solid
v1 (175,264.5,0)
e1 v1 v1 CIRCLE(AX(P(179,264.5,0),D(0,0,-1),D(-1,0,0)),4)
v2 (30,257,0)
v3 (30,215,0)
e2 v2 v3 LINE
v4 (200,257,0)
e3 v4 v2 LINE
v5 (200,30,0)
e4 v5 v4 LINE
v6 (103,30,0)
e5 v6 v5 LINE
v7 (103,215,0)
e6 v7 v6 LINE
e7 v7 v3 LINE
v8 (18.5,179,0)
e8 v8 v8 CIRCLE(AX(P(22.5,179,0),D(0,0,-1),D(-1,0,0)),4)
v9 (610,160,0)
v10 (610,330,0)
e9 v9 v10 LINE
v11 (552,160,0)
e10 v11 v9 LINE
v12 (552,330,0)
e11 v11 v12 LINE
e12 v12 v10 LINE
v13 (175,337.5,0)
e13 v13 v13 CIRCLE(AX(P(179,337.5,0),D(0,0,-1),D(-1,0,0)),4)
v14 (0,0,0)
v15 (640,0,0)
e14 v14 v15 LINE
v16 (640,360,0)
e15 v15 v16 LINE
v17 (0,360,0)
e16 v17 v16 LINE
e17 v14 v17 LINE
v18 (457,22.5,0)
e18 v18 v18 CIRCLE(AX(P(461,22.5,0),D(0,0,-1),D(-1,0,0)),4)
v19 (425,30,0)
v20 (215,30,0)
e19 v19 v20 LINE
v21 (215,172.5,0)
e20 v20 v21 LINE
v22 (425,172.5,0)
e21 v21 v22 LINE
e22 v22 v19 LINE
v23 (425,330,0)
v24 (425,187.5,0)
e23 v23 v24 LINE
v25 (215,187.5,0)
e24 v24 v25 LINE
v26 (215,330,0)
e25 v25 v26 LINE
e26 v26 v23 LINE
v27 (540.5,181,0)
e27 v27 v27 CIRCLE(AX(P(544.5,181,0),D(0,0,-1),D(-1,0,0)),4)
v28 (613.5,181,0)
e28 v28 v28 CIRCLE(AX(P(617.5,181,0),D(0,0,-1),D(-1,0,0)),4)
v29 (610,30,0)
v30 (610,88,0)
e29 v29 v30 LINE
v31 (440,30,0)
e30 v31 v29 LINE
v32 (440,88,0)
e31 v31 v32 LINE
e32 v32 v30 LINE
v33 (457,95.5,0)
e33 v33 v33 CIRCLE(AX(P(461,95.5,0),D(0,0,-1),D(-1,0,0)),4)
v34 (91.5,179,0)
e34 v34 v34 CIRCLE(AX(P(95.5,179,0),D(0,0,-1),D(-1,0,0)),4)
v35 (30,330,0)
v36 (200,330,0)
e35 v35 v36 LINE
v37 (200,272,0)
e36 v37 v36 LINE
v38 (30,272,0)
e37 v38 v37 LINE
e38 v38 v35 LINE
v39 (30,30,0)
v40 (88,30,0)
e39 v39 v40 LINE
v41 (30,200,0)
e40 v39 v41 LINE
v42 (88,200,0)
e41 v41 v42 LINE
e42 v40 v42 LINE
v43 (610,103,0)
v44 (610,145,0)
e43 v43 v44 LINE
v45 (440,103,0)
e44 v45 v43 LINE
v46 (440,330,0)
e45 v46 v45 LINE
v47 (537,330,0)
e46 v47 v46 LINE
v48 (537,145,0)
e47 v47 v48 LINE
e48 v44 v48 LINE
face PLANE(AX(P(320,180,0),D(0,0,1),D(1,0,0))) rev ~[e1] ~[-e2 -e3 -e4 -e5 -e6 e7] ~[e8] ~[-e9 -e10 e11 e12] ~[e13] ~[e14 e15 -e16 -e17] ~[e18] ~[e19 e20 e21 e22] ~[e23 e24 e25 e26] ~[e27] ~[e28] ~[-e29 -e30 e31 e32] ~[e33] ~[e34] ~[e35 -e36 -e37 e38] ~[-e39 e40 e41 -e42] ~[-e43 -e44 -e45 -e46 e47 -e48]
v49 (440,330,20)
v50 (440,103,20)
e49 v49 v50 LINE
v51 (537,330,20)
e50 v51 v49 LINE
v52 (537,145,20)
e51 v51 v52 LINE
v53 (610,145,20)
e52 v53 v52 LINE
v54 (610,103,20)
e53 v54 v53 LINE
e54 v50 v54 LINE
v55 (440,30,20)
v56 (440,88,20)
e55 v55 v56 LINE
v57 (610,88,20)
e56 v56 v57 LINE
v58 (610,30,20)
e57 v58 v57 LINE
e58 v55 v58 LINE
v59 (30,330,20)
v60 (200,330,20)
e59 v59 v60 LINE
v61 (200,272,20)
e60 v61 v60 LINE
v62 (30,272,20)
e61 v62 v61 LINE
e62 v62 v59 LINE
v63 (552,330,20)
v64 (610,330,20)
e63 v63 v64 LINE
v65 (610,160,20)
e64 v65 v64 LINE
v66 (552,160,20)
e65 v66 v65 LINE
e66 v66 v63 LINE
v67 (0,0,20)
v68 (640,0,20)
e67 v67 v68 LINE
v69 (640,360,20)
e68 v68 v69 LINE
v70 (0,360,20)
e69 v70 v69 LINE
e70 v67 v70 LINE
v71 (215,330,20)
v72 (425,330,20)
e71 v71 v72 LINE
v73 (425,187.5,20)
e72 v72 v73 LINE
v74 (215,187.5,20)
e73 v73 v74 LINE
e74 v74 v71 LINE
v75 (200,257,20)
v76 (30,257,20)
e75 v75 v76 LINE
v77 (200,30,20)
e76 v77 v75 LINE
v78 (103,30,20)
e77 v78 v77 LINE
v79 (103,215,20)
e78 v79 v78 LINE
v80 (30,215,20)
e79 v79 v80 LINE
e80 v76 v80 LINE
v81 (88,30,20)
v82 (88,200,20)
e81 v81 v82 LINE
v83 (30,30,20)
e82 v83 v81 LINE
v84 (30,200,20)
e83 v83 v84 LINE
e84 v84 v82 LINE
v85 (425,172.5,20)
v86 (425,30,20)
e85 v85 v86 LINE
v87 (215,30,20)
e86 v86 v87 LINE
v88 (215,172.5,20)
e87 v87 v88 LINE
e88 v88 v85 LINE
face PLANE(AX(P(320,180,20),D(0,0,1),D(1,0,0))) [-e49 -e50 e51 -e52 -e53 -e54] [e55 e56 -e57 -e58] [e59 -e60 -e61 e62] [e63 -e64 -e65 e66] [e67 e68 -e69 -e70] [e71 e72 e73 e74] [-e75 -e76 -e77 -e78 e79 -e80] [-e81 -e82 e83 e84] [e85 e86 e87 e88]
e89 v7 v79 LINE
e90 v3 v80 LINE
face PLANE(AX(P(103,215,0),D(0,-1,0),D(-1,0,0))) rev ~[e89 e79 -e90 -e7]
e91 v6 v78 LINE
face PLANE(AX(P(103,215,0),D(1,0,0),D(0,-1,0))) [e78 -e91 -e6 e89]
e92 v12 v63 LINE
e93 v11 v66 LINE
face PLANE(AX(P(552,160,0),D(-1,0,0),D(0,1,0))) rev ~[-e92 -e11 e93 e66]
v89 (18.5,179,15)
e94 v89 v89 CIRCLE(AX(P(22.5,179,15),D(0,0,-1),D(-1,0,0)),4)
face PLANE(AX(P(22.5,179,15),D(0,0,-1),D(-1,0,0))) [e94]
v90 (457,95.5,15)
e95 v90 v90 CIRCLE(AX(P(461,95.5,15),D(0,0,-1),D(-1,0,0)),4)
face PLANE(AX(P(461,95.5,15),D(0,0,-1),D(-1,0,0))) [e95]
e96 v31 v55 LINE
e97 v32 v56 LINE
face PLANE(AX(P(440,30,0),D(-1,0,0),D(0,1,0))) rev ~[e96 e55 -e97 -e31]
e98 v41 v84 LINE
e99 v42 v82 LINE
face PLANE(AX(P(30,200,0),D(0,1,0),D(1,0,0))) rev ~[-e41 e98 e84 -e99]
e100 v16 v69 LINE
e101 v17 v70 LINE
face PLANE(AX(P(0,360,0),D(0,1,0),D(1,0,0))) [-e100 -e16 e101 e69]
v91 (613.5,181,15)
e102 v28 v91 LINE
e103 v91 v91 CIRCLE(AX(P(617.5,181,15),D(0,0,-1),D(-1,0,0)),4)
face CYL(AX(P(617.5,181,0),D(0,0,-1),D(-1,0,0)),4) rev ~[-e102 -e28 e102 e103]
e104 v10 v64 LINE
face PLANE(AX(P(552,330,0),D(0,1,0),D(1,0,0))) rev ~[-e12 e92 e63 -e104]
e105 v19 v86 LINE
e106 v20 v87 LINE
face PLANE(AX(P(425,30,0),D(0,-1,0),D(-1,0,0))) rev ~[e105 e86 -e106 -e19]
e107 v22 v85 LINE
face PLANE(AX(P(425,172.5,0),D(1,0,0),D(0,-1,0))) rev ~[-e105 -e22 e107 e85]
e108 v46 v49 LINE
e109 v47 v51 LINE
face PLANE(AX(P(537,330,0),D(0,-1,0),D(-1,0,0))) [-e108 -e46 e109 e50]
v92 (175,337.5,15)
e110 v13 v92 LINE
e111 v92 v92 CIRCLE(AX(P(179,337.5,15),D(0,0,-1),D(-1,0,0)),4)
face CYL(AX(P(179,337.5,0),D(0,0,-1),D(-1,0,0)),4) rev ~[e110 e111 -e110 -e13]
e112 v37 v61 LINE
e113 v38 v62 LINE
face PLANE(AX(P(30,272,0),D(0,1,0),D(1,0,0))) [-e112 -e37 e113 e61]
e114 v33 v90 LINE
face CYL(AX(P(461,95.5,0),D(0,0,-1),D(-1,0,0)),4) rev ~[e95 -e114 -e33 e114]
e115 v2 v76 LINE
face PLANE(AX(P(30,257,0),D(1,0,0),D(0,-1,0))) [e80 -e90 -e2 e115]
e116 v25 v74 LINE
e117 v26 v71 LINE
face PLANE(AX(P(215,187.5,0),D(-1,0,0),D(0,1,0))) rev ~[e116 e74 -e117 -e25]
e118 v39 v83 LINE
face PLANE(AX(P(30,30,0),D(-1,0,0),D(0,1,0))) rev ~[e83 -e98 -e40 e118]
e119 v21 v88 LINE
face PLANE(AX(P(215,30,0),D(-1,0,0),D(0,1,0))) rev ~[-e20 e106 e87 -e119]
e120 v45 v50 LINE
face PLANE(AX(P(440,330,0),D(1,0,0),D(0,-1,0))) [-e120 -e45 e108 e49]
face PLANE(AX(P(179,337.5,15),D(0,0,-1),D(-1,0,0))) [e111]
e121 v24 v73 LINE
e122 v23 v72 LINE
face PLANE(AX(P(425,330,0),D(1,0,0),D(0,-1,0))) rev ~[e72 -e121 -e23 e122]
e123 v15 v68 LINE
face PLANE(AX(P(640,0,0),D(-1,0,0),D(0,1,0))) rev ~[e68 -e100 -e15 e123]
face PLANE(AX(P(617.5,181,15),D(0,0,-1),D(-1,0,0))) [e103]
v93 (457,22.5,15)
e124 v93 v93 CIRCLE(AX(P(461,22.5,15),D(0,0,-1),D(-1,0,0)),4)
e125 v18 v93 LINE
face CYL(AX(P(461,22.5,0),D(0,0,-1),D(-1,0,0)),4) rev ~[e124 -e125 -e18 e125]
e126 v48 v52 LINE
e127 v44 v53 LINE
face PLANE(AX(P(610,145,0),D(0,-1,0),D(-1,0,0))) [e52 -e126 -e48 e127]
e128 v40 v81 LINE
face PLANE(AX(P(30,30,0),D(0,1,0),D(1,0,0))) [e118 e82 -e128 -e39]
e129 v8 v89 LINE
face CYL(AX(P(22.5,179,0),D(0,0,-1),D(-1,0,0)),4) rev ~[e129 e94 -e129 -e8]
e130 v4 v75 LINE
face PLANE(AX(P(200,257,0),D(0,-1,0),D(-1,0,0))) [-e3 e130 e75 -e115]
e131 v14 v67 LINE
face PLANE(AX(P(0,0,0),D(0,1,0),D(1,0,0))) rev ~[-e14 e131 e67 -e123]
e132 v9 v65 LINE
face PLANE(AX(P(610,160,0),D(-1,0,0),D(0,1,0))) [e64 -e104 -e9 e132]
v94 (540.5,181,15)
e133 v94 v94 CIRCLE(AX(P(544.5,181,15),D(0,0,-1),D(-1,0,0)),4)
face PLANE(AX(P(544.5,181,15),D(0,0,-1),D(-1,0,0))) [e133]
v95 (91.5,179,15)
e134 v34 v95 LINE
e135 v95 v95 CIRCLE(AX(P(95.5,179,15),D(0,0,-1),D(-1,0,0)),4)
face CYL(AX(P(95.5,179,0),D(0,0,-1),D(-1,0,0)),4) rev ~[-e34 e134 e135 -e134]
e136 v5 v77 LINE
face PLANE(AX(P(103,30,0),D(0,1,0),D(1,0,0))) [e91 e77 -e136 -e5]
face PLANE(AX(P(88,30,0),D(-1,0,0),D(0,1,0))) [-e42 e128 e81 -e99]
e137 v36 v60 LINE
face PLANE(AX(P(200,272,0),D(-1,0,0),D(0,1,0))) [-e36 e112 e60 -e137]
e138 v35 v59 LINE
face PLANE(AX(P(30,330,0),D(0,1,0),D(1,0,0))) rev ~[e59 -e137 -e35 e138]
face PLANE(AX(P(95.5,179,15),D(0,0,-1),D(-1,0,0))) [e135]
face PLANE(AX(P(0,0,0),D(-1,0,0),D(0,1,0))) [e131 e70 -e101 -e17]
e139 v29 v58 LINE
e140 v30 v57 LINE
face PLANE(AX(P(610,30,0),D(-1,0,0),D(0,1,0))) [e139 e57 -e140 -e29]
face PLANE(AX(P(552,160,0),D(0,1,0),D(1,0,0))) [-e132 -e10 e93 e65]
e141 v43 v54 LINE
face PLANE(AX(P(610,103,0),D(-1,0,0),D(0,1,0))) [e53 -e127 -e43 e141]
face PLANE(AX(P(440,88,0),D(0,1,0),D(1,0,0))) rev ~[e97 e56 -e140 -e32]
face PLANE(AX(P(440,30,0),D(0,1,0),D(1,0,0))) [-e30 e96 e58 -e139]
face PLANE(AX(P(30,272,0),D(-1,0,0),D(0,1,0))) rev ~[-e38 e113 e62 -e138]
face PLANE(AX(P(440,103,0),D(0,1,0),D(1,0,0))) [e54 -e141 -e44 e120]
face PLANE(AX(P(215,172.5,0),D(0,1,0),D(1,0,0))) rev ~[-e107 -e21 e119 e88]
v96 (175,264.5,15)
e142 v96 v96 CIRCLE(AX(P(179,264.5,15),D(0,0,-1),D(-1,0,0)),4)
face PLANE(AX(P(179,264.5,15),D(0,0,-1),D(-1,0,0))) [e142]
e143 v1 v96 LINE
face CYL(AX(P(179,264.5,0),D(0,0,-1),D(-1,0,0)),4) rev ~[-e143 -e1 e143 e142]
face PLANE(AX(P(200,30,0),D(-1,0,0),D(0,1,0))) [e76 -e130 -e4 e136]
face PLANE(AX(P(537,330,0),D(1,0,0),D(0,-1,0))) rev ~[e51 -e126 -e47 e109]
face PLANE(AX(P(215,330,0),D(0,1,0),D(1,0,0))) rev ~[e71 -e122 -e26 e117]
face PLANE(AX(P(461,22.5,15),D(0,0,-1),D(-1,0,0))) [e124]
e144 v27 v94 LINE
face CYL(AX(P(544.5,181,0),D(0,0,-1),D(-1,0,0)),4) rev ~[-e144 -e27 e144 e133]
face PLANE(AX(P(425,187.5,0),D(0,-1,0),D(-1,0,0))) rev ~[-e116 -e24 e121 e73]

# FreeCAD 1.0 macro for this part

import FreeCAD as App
import Part
import Sketcher
from FreeCAD import Vector

doc = App.newDocument("Part")
body = doc.addObject("PartDesign::Body", "Body")

# Sketch on XY plane
sketch1 = body.newObject("Sketcher::SketchObject", "Sketch")
sketch1.AttachmentSupport = (doc.getObject("XY_Plane"), [""])
sketch1.MapMode = "FlatFace"
sketch1.addGeometry([
    Part.LineSegment(Vector(0, 360, 0), Vector(0, 0, 0)),  # 0
    Part.LineSegment(Vector(0, 0, 0), Vector(640, 0, 0)),  # 1
    Part.LineSegment(Vector(640, 0, 0), Vector(640, 360, 0)),  # 2
    Part.LineSegment(Vector(640, 360, 0), Vector(0, 360, 0)),  # 3
    Part.LineSegment(Vector(88, 30, 0), Vector(30, 30, 0)),  # 4
    Part.LineSegment(Vector(30, 30, 0), Vector(30, 200, 0)),  # 5
    Part.LineSegment(Vector(30, 200, 0), Vector(88, 200, 0)),  # 6
    Part.LineSegment(Vector(88, 200, 0), Vector(88, 30, 0)),  # 7
    Part.LineSegment(Vector(30, 257, 0), Vector(200, 257, 0)),  # 8
    Part.LineSegment(Vector(200, 257, 0), Vector(200, 30, 0)),  # 9
    Part.LineSegment(Vector(200, 30, 0), Vector(103, 30, 0)),  # 10
    Part.LineSegment(Vector(103, 30, 0), Vector(103, 215, 0)),  # 11
    Part.LineSegment(Vector(103, 215, 0), Vector(30, 215, 0)),  # 12
    Part.LineSegment(Vector(30, 215, 0), Vector(30, 257, 0)),  # 13
    Part.LineSegment(Vector(425, 172.5, 0), Vector(425, 30, 0)),  # 14
    Part.LineSegment(Vector(425, 30, 0), Vector(215, 30, 0)),  # 15
    Part.LineSegment(Vector(215, 30, 0), Vector(215, 172.5, 0)),  # 16
    Part.LineSegment(Vector(215, 172.5, 0), Vector(425, 172.5, 0)),  # 17
    Part.LineSegment(Vector(610, 30, 0), Vector(440, 30, 0)),  # 18
    Part.LineSegment(Vector(440, 30, 0), Vector(440, 88, 0)),  # 19
    Part.LineSegment(Vector(440, 88, 0), Vector(610, 88, 0)),  # 20
    Part.LineSegment(Vector(610, 88, 0), Vector(610, 30, 0)),  # 21
    Part.LineSegment(Vector(200, 272, 0), Vector(30, 272, 0)),  # 22
    Part.LineSegment(Vector(30, 272, 0), Vector(30, 330, 0)),  # 23
    Part.LineSegment(Vector(30, 330, 0), Vector(200, 330, 0)),  # 24
    Part.LineSegment(Vector(200, 330, 0), Vector(200, 272, 0)),  # 25
    Part.LineSegment(Vector(610, 103, 0), Vector(440, 103, 0)),  # 26
    Part.LineSegment(Vector(440, 103, 0), Vector(440, 330, 0)),  # 27
    Part.LineSegment(Vector(440, 330, 0), Vector(537, 330, 0)),  # 28
    Part.LineSegment(Vector(537, 330, 0), Vector(537, 145, 0)),  # 29
    Part.LineSegment(Vector(537, 145, 0), Vector(610, 145, 0)),  # 30
    Part.LineSegment(Vector(610, 145, 0), Vector(610, 103, 0)),  # 31
    Part.LineSegment(Vector(610, 160, 0), Vector(552, 160, 0)),  # 32
    Part.LineSegment(Vector(552, 160, 0), Vector(552, 330, 0)),  # 33
    Part.LineSegment(Vector(552, 330, 0), Vector(610, 330, 0)),  # 34
    Part.LineSegment(Vector(610, 330, 0), Vector(610, 160, 0)),  # 35
    Part.LineSegment(Vector(215, 187.5, 0), Vector(215, 330, 0)),  # 36
    Part.LineSegment(Vector(215, 330, 0), Vector(425, 330, 0)),  # 37
    Part.LineSegment(Vector(425, 330, 0), Vector(425, 187.5, 0)),  # 38
    Part.LineSegment(Vector(425, 187.5, 0), Vector(215, 187.5, 0)),  # 39
], False)
sketch1.addConstraint([
    Sketcher.Constraint("Coincident", 0, 2, 1, 1),
    Sketcher.Constraint("Coincident", 1, 2, 2, 1),
    Sketcher.Constraint("Coincident", 2, 2, 3, 1),
    Sketcher.Constraint("Coincident", 3, 2, 0, 1),
    Sketcher.Constraint("Coincident", 4, 2, 5, 1),
    Sketcher.Constraint("Coincident", 5, 2, 6, 1),
    Sketcher.Constraint("Coincident", 6, 2, 7, 1),
    Sketcher.Constraint("Coincident", 7, 2, 4, 1),
    Sketcher.Constraint("Coincident", 8, 2, 9, 1),
    Sketcher.Constraint("Coincident", 9, 2, 10, 1),
    Sketcher.Constraint("Coincident", 10, 2, 11, 1),
    Sketcher.Constraint("Coincident", 11, 2, 12, 1),
    Sketcher.Constraint("Coincident", 12, 2, 13, 1),
    Sketcher.Constraint("Coincident", 13, 2, 8, 1),
    Sketcher.Constraint("Coincident", 14, 2, 15, 1),
    Sketcher.Constraint("Coincident", 15, 2, 16, 1),
    Sketcher.Constraint("Coincident", 16, 2, 17, 1),
    Sketcher.Constraint("Coincident", 17, 2, 14, 1),
    Sketcher.Constraint("Coincident", 18, 2, 19, 1),
    Sketcher.Constraint("Coincident", 19, 2, 20, 1),
    Sketcher.Constraint("Coincident", 20, 2, 21, 1),
    Sketcher.Constraint("Coincident", 21, 2, 18, 1),
    Sketcher.Constraint("Coincident", 22, 2, 23, 1),
    Sketcher.Constraint("Coincident", 23, 2, 24, 1),
    Sketcher.Constraint("Coincident", 24, 2, 25, 1),
    Sketcher.Constraint("Coincident", 25, 2, 22, 1),
    Sketcher.Constraint("Coincident", 26, 2, 27, 1),
    Sketcher.Constraint("Coincident", 27, 2, 28, 1),
    Sketcher.Constraint("Coincident", 28, 2, 29, 1),
    Sketcher.Constraint("Coincident", 29, 2, 30, 1),
    Sketcher.Constraint("Coincident", 30, 2, 31, 1),
    Sketcher.Constraint("Coincident", 31, 2, 26, 1),
    Sketcher.Constraint("Coincident", 32, 2, 33, 1),
    Sketcher.Constraint("Coincident", 33, 2, 34, 1),
    Sketcher.Constraint("Coincident", 34, 2, 35, 1),
    Sketcher.Constraint("Coincident", 35, 2, 32, 1),
    Sketcher.Constraint("Coincident", 36, 2, 37, 1),
    Sketcher.Constraint("Coincident", 37, 2, 38, 1),
    Sketcher.Constraint("Coincident", 38, 2, 39, 1),
    Sketcher.Constraint("Coincident", 39, 2, 36, 1),
    Sketcher.Constraint("Vertical", 0),
    Sketcher.Constraint("Horizontal", 1),
    Sketcher.Constraint("Vertical", 2),
    Sketcher.Constraint("Horizontal", 3),
    Sketcher.Constraint("Horizontal", 4),
    Sketcher.Constraint("Vertical", 5),
    Sketcher.Constraint("Horizontal", 6),
    Sketcher.Constraint("Vertical", 7),
    Sketcher.Constraint("Horizontal", 8),
    Sketcher.Constraint("Vertical", 9),
    Sketcher.Constraint("Horizontal", 10),
    Sketcher.Constraint("Vertical", 11),
    Sketcher.Constraint("Horizontal", 12),
    Sketcher.Constraint("Vertical", 13),
    Sketcher.Constraint("Vertical", 14),
    Sketcher.Constraint("Horizontal", 15),
    Sketcher.Constraint("Vertical", 16),
    Sketcher.Constraint("Horizontal", 17),
    Sketcher.Constraint("Horizontal", 18),
    Sketcher.Constraint("Vertical", 19),
    Sketcher.Constraint("Horizontal", 20),
    Sketcher.Constraint("Vertical", 21),
    Sketcher.Constraint("Horizontal", 22),
    Sketcher.Constraint("Vertical", 23),
    Sketcher.Constraint("Horizontal", 24),
    Sketcher.Constraint("Vertical", 25),
    Sketcher.Constraint("Horizontal", 26),
    Sketcher.Constraint("Vertical", 27),
    Sketcher.Constraint("Horizontal", 28),
    Sketcher.Constraint("Vertical", 29),
    Sketcher.Constraint("Horizontal", 30),
    Sketcher.Constraint("Vertical", 31),
    Sketcher.Constraint("Horizontal", 32),
    Sketcher.Constraint("Vertical", 33),
    Sketcher.Constraint("Horizontal", 34),
    Sketcher.Constraint("Vertical", 35),
    Sketcher.Constraint("Vertical", 36),
    Sketcher.Constraint("Horizontal", 37),
    Sketcher.Constraint("Vertical", 38),
    Sketcher.Constraint("Horizontal", 39),
    Sketcher.Constraint("Coincident", 0, 2, -1, 1),
    Sketcher.Constraint("Horizontal", 7, 2, 9, 2),
    Sketcher.Constraint("Horizontal", 10, 2, 14, 2),
    Sketcher.Constraint("Horizontal", 15, 2, 18, 2),
    Sketcher.Constraint("Horizontal", 24, 2, 27, 2),
    Sketcher.Constraint("Horizontal", 28, 2, 33, 2),
    Sketcher.Constraint("Horizontal", 34, 2, 36, 2),
    Sketcher.Constraint("Vertical", 5, 2, 12, 2),
    Sketcher.Constraint("Vertical", 13, 2, 22, 2),
    Sketcher.Constraint("Vertical", 9, 2, 24, 2),
    Sketcher.Constraint("Vertical", 19, 2, 26, 2),
    Sketcher.Constraint("Vertical", 21, 2, 30, 2),
    Sketcher.Constraint("Vertical", 31, 2, 34, 2),
    Sketcher.Constraint("Vertical", 16, 2, 36, 2),
    Sketcher.Constraint("Vertical", 17, 2, 37, 2),
    Sketcher.Constraint("Equal", 8, 18),
    Sketcher.Constraint("Equal", 10, 28),
    Sketcher.Constraint("Equal", 6, 32),
    Sketcher.Constraint("Equal", 26, 5),
    Sketcher.Constraint("Equal", 34, 19),
    Sketcher.Constraint("Equal", 21, 23),
    Sketcher.Constraint("Equal", 9, 27),
    Sketcher.Constraint("Equal", 11, 29),
    Sketcher.Constraint("Equal", 7, 33),
    Sketcher.Constraint("Equal", 16, 36),
    Sketcher.Constraint("DistanceX", 1, 1, 1, 2, 640.0),
    Sketcher.Constraint("DistanceX", 4, 2, 4, 1, 58.0),
    Sketcher.Constraint("DistanceX", 8, 1, 8, 2, 170.0),
    Sketcher.Constraint("DistanceX", 10, 2, 10, 1, 97.0),
    Sketcher.Constraint("DistanceX", 15, 2, 15, 1, 210.0),
    Sketcher.Constraint("DistanceY", 0, 2, 0, 1, 360.0),
    Sketcher.Constraint("DistanceY", 9, 2, 9, 1, 227.0),
    Sketcher.Constraint("DistanceY", 11, 1, 11, 2, 185.0),
    Sketcher.Constraint("DistanceY", 14, 2, 14, 1, 142.5),
    Sketcher.Constraint("DistanceX", -1, 1, 4, 2, 30.0),
    Sketcher.Constraint("DistanceY", -1, 1, 4, 2, 30.0),
    Sketcher.Constraint("DistanceX", -1, 1, 14, 2, 425.0),
    Sketcher.Constraint("DistanceX", -1, 1, 18, 2, 440.0),
    Sketcher.Constraint("DistanceY", -1, 1, 22, 2, 272.0),
])
pad1 = body.newObject("PartDesign::Pad", "Pad")
pad1.Profile = sketch1
pad1.Length = 20

# Sketch on XY plane
sketch2 = body.newObject("Sketcher::SketchObject", "Sketch001")
sketch2.AttachmentSupport = (doc.getObject("XY_Plane"), [""])
sketch2.MapMode = "FlatFace"
sketch2.addGeometry([
    Part.Circle(Vector(179, 337.5, 0), Vector(0, 0, 1), 4),  # 0
    Part.Circle(Vector(179, 264.5, 0), Vector(0, 0, 1), 4),  # 1
    Part.Circle(Vector(22.5, 179, 0), Vector(0, 0, 1), 4),  # 2
    Part.Circle(Vector(95.5, 179, 0), Vector(0, 0, 1), 4),  # 3
    Part.Circle(Vector(461, 95.5, 0), Vector(0, 0, 1), 4),  # 4
    Part.Circle(Vector(461, 22.5, 0), Vector(0, 0, 1), 4),  # 5
    Part.Circle(Vector(544.5, 181, 0), Vector(0, 0, 1), 4),  # 6
    Part.Circle(Vector(617.5, 181, 0), Vector(0, 0, 1), 4),  # 7
], False)
sketch2.addConstraint([
    Sketcher.Constraint("Equal", 0, 1),
    Sketcher.Constraint("Equal", 1, 2),
    Sketcher.Constraint("Equal", 2, 3),
    Sketcher.Constraint("Equal", 3, 4),
    Sketcher.Constraint("Equal", 4, 5),
    Sketcher.Constraint("Equal", 5, 6),
    Sketcher.Constraint("Equal", 6, 7),
    Sketcher.Constraint("Horizontal", 2, 3, 3, 3),
    Sketcher.Constraint("Horizontal", 6, 3, 7, 3),
    Sketcher.Constraint("Vertical", 0, 3, 1, 3),
    Sketcher.Constraint("Vertical", 4, 3, 5, 3),
    Sketcher.Constraint("Diameter", 0, 8.0),
    Sketcher.Constraint("DistanceX", -1, 1, 0, 3, 179.0),
    Sketcher.Constraint("DistanceY", -1, 1, 2, 3, 179.0),
    Sketcher.Constraint("DistanceX", -1, 1, 4, 3, 461.0),
    Sketcher.Constraint("DistanceY", -1, 1, 6, 3, 181.0),
    Sketcher.Constraint("DistanceY", 1, 3, 0, 3, 73.0),
    Sketcher.Constraint("DistanceX", 2, 3, 3, 3, 73.0),
    Sketcher.Constraint("DistanceY", 4, 3, 1, 3, 169.0),
    Sketcher.Constraint("DistanceY", 5, 3, 4, 3, 73.0),
    Sketcher.Constraint("DistanceX", 3, 3, 6, 3, 449.0),
    Sketcher.Constraint("DistanceX", 6, 3, 7, 3, 73.0),
    Sketcher.Constraint("DistanceY", -1, 1, 0, 3, 337.5),
    Sketcher.Constraint("DistanceX", -1, 1, 2, 3, 22.5),
])
pocket1 = body.newObject("PartDesign::Pocket", "Pocket")
pocket1.Profile = sketch2
pocket1.Length = 15
pocket1.Reversed = True

doc.recompute()
